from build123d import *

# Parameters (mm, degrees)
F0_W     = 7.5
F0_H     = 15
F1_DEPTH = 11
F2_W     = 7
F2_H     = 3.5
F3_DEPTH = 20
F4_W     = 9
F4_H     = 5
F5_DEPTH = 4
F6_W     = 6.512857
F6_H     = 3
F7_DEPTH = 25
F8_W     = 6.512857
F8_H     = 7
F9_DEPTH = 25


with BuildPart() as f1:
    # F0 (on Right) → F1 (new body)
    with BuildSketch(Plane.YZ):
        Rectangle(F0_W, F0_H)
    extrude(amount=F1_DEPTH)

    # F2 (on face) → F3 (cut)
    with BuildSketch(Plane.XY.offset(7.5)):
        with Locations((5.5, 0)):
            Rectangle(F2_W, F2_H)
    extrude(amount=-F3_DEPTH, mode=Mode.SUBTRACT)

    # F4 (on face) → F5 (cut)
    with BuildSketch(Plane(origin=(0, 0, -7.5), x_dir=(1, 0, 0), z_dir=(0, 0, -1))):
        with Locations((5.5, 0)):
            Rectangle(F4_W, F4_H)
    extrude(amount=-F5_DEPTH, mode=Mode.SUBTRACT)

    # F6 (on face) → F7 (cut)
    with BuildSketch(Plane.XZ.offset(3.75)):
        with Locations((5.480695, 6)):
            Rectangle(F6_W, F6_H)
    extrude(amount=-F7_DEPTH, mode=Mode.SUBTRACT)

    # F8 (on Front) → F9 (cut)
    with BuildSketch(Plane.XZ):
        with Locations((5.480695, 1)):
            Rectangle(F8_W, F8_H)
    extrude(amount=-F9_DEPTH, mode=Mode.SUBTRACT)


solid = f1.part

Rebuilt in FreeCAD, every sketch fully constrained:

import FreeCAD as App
import Part
import Sketcher

V = App.Vector


def add_polygon(sketch, points):
    """Adds a closed chain of lines whose ends are joined by coincident constraints."""
    first, n = sketch.GeometryCount, len(points)
    for a, b in zip(points, points[1:] + points[:1]):
        sketch.addGeometry(Part.LineSegment(App.Vector(*a, 0), App.Vector(*b, 0)), False)
    for i in range(n):
        sketch.addConstraint(Sketcher.Constraint("Coincident", first + i, 2, first + (i + 1) % n, 1))

doc = App.newDocument("Part")
body = doc.addObject("PartDesign::Body", "Body")

# Sketch on YZ plane
sketch1 = body.newObject("Sketcher::SketchObject", "Sketch")
sketch1.AttachmentSupport = (doc.getObject("YZ_Plane"), [""])
sketch1.MapMode = "FlatFace"
add_polygon(sketch1, [(-4, 8), (-4, -8), (4, -8), (4, 8)])  # lines 0-3
sketch1.addConstraint(Sketcher.Constraint("Vertical", 0))
sketch1.addConstraint(Sketcher.Constraint("Horizontal", 1))
sketch1.addConstraint(Sketcher.Constraint("Vertical", 2))
sketch1.addConstraint(Sketcher.Constraint("Horizontal", 3))
sketch1.addConstraint(Sketcher.Constraint("Symmetric", 0, 2, 2, 2, -1, 1))
sketch1.addConstraint(Sketcher.Constraint("DistanceY", 0, 2, 0, 1, 15.0))
sketch1.addConstraint(Sketcher.Constraint("DistanceX", 1, 1, 1, 2, 7.5))
pad1 = body.newObject("PartDesign::Pad", "Pad")
pad1.Profile = sketch1
pad1.Length = 11

# Sketch on XY plane
sketch2 = body.newObject("Sketcher::SketchObject", "Sketch001")
sketch2.AttachmentSupport = (doc.getObject("XY_Plane"), [""])
sketch2.MapMode = "FlatFace"
sketch2.AttachmentOffset = App.Placement(V(0, 0, 7.5), App.Rotation())
add_polygon(sketch2, [(2, 1.8), (2, -1.8), (9, -1.8), (9, 1.8)])  # lines 0-3
sketch2.addConstraint(Sketcher.Constraint("Vertical", 0))
sketch2.addConstraint(Sketcher.Constraint("Horizontal", 1))
sketch2.addConstraint(Sketcher.Constraint("Vertical", 2))
sketch2.addConstraint(Sketcher.Constraint("Horizontal", 3))
sketch2.addConstraint(Sketcher.Constraint("DistanceX", 1, 1, 1, 2, 7.0))
sketch2.addConstraint(Sketcher.Constraint("DistanceY", 0, 2, 0, 1, 3.5))
sketch2.addConstraint(Sketcher.Constraint("DistanceX", -1, 1, 0, 2, 2.0))
sketch2.addConstraint(Sketcher.Constraint("DistanceY", 0, 2, -1, 1, 1.75))
pocket1 = body.newObject("PartDesign::Pocket", "Pocket")
pocket1.Profile = sketch2
pocket1.Length = 20

# Sketch on XY plane
sketch3 = body.newObject("Sketcher::SketchObject", "Sketch002")
sketch3.AttachmentSupport = (doc.getObject("XY_Plane"), [""])
sketch3.MapMode = "FlatFace"
sketch3.AttachmentOffset = App.Placement(V(0, 0, -7.5), App.Rotation())
add_polygon(sketch3, [(1, -2), (1, 2), (10, 2), (10, -2)])  # lines 0-3
sketch3.addConstraint(Sketcher.Constraint("Vertical", 0))
sketch3.addConstraint(Sketcher.Constraint("Horizontal", 1))
sketch3.addConstraint(Sketcher.Constraint("Vertical", 2))
sketch3.addConstraint(Sketcher.Constraint("Horizontal", 3))
sketch3.addConstraint(Sketcher.Constraint("DistanceX", 1, 1, 1, 2, 9.0))
sketch3.addConstraint(Sketcher.Constraint("DistanceY", 0, 1, 0, 2, 5.0))
sketch3.addConstraint(Sketcher.Constraint("DistanceX", -1, 1, 0, 2, 1.0))
sketch3.addConstraint(Sketcher.Constraint("DistanceY", -1, 1, 0, 2, 2.5))
pocket2 = body.newObject("PartDesign::Pocket", "Pocket001")
pocket2.Profile = sketch3
pocket2.Length = 4
pocket2.Reversed = True

# Sketch on XZ plane
sketch4 = body.newObject("Sketcher::SketchObject", "Sketch003")
sketch4.AttachmentSupport = (doc.getObject("XZ_Plane"), [""])
sketch4.MapMode = "FlatFace"
sketch4.AttachmentOffset = App.Placement(V(0, 0, 3.75), App.Rotation())
add_polygon(sketch4, [(2.2, 7.5), (2.2, 4.5), (8.7, 4.5), (8.7, 7.5)])  # lines 0-3
sketch4.addConstraint(Sketcher.Constraint("Vertical", 0))
sketch4.addConstraint(Sketcher.Constraint("Horizontal", 1))
sketch4.addConstraint(Sketcher.Constraint("Vertical", 2))
sketch4.addConstraint(Sketcher.Constraint("Horizontal", 3))
sketch4.addConstraint(Sketcher.Constraint("DistanceY", 0, 2, 0, 1, 3.0))
sketch4.addConstraint(Sketcher.Constraint("DistanceY", -1, 1, 0, 2, 4.5))
sketch4.addConstraint(Sketcher.Constraint("DistanceX", 1, 1, 1, 2, 6.512857))
sketch4.addConstraint(Sketcher.Constraint("DistanceX", -1, 1, 0, 2, 2.224267))
pocket3 = body.newObject("PartDesign::Pocket", "Pocket002")
pocket3.Profile = sketch4
pocket3.Length = 25

# Sketch on XZ plane
sketch5 = body.newObject("Sketcher::SketchObject", "Sketch004")
sketch5.AttachmentSupport = (doc.getObject("XZ_Plane"), [""])
sketch5.MapMode = "FlatFace"
add_polygon(sketch5, [(2, 4), (2, -2), (9, -2), (9, 4)])  # lines 0-3
sketch5.addConstraint(Sketcher.Constraint("Vertical", 0))
sketch5.addConstraint(Sketcher.Constraint("Horizontal", 1))
sketch5.addConstraint(Sketcher.Constraint("Vertical", 2))
sketch5.addConstraint(Sketcher.Constraint("Horizontal", 3))
sketch5.addConstraint(Sketcher.Constraint("DistanceY", 0, 2, 0, 1, 7.0))
sketch5.addConstraint(Sketcher.Constraint("DistanceY", 0, 2, -1, 1, 2.5))
sketch5.addConstraint(Sketcher.Constraint("DistanceX", 1, 1, 1, 2, 6.512857))
sketch5.addConstraint(Sketcher.Constraint("DistanceX", -1, 1, 0, 2, 2.224267))
pocket4 = body.newObject("PartDesign::Pocket", "Pocket003")
pocket4.Profile = sketch5
pocket4.Length = 25

doc.recompute()
